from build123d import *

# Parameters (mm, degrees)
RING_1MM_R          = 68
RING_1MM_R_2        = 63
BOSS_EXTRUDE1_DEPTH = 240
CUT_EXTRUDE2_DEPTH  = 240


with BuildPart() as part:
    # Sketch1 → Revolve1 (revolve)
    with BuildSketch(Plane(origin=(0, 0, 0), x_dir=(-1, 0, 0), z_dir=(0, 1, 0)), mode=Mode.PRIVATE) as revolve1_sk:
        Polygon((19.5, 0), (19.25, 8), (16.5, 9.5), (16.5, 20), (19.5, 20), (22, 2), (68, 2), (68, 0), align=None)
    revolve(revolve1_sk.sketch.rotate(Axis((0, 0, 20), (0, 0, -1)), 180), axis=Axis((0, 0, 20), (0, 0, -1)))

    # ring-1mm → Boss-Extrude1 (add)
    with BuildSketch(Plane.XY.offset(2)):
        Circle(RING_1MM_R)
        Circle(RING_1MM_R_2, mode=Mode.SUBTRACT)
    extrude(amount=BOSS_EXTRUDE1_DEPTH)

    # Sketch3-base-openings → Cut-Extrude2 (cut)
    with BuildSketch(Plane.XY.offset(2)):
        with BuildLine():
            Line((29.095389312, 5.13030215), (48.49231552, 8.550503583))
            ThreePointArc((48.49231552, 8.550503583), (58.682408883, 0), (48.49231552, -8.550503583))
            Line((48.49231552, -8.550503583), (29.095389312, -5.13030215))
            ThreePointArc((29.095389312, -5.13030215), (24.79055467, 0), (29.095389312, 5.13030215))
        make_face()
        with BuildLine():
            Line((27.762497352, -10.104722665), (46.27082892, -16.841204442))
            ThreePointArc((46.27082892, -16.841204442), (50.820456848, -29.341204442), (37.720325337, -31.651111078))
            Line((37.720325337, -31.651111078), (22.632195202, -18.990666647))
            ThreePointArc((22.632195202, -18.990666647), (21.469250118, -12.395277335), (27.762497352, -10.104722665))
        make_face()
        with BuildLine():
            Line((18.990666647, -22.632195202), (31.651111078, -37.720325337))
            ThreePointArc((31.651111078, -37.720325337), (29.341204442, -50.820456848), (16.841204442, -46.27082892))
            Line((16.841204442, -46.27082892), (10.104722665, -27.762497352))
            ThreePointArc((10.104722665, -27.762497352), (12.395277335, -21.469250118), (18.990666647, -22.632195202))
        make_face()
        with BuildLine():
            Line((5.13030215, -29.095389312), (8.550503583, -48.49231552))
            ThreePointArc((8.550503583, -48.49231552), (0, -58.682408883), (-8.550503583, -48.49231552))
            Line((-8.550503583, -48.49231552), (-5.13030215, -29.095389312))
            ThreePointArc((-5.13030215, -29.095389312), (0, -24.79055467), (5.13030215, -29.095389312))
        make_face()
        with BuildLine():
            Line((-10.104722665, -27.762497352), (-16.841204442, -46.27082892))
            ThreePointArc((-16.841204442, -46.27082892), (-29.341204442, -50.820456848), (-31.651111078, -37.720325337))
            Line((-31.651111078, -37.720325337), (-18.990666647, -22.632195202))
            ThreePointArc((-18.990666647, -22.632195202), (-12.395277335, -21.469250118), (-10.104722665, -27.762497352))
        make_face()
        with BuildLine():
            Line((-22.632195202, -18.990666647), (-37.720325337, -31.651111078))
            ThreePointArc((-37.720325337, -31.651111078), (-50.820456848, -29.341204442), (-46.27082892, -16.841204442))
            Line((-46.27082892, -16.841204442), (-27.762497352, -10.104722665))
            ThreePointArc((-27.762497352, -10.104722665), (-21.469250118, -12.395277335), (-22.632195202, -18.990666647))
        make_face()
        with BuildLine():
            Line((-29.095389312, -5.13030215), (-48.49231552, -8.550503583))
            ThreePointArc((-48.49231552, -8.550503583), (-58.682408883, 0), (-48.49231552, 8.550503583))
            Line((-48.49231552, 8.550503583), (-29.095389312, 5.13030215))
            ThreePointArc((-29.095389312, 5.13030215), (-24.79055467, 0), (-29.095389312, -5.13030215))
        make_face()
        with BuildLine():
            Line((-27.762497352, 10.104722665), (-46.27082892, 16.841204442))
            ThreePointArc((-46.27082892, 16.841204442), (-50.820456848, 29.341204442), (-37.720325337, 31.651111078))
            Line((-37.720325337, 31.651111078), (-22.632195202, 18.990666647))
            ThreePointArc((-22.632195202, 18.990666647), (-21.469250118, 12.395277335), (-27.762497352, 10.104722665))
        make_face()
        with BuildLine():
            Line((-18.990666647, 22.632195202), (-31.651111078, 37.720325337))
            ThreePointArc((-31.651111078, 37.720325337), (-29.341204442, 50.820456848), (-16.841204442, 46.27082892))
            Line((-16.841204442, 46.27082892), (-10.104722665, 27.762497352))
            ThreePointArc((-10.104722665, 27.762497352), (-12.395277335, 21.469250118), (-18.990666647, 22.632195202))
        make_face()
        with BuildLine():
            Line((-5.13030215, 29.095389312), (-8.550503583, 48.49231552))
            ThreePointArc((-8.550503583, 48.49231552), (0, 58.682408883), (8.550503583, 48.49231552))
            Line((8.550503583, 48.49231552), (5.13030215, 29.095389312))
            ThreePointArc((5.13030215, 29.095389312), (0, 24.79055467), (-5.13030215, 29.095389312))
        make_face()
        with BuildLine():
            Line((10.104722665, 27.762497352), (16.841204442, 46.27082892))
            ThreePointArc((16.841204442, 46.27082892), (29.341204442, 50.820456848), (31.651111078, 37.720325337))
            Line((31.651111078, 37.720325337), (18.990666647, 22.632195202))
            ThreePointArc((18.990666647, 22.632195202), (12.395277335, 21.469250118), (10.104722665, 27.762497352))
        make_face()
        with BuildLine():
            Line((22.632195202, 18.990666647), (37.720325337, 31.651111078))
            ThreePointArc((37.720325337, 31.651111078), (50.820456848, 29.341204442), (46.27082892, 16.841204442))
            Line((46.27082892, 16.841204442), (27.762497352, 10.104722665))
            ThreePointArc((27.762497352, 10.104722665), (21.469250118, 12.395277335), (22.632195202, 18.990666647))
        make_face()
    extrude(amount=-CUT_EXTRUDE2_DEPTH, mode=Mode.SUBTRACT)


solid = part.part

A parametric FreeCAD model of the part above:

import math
import FreeCAD as App
import Part
import Sketcher
from FreeCAD import Vector
Q = App.Units.Quantity

doc = App.newDocument("Part")
params = doc.addObject("Spreadsheet::Sheet", "Params")
for row, (alias, value) in enumerate([
    ("sketch1_width", "46 mm"),
    ("sketch1_width2", "3 mm"),
    ("sketch1_height", "2 mm"),
    ("sketch1_width3", "48.5 mm"),
    ("sketch1_height2", "10.5 mm"),
    ("revolution_angle", "360 deg"),
    ("sketch2_diameter", "136 mm"),
    ("sketch2_diameter2", "126 mm"),
    ("pad1_length", "240 mm"),
    ("pocket1_length", "240 mm"),
], start=1):
    params.set(f"A{row}", alias)
    params.set(f"B{row}", "=" + value)
    params.setAlias(f"B{row}", alias)

body = doc.addObject("PartDesign::Body", "Body")

# Sketch on XZ plane
sketch1 = body.newObject("Sketcher::SketchObject", "Sketch")
sketch1.AttachmentSupport = (doc.getObject("XZ_Plane"), [""])
sketch1.MapMode = "FlatFace"
sketch1.addGeometry([
    Part.LineSegment(Vector(-19.25, 8, 0), Vector(-19.5, 0, 0)),  # 0
    Part.LineSegment(Vector(-19.5, 0, 0), Vector(-68, 0, 0)),  # 1
    Part.LineSegment(Vector(-68, 0, 0), Vector(-68, 2, 0)),  # 2
    Part.LineSegment(Vector(-68, 2, 0), Vector(-22, 2, 0)),  # 3
    Part.LineSegment(Vector(-22, 2, 0), Vector(-19.5, 20, 0)),  # 4
    Part.LineSegment(Vector(-19.5, 20, 0), Vector(-16.5, 20, 0)),  # 5
    Part.LineSegment(Vector(-16.5, 20, 0), Vector(-16.5, 9.5, 0)),  # 6
    Part.LineSegment(Vector(-16.5, 9.5, 0), Vector(-19.25, 8, 0)),  # 7
], False)
sketch1.addConstraint([
    Sketcher.Constraint("Coincident", 0, 2, 1, 1),
    Sketcher.Constraint("Coincident", 1, 2, 2, 1),
    Sketcher.Constraint("Coincident", 2, 2, 3, 1),
    Sketcher.Constraint("Coincident", 3, 2, 4, 1),
    Sketcher.Constraint("Coincident", 4, 2, 5, 1),
    Sketcher.Constraint("Coincident", 5, 2, 6, 1),
    Sketcher.Constraint("Coincident", 6, 2, 7, 1),
    Sketcher.Constraint("Coincident", 7, 2, 0, 1),
    Sketcher.Constraint("Horizontal", 1),
    Sketcher.Constraint("Vertical", 2),
    Sketcher.Constraint("Horizontal", 3),
    Sketcher.Constraint("Horizontal", 5),
    Sketcher.Constraint("Vertical", 6),
    Sketcher.Constraint("PointOnObject", 0, 2, -1),
    Sketcher.Constraint("Vertical", 0, 2, 4, 2),
    Sketcher.Constraint("DistanceX", 3, 1, 3, 2, Q("46 mm")),
    Sketcher.Constraint("DistanceX", 5, 1, 5, 2, Q("3 mm")),
    Sketcher.Constraint("DistanceY", 2, 1, 2, 2, Q("2 mm")),
    Sketcher.Constraint("DistanceX", 1, 2, 1, 1, Q("48.5 mm")),
    Sketcher.Constraint("DistanceY", 6, 2, 6, 1, Q("10.5 mm")),
    Sketcher.Constraint("DistanceX", 1, 2, -1, 1, Q("68 mm")),
    Sketcher.Constraint("DistanceY", -1, 1, 4, 2, Q("20 mm")),
    Sketcher.Constraint("DistanceY", -1, 1, 7, 2, Q("8 mm")),
    Sketcher.Constraint("DistanceX", 7, 2, -1, 1, Q("19.25 mm")),
])
sketch1.setExpression("Constraints[15]", "Params.sketch1_width")
sketch1.setExpression("Constraints[16]", "Params.sketch1_width2")
sketch1.setExpression("Constraints[17]", "Params.sketch1_height")
sketch1.setExpression("Constraints[18]", "Params.sketch1_width3")
sketch1.setExpression("Constraints[19]", "Params.sketch1_height2")
revolution = body.newObject("PartDesign::Revolution", "Revolution")
revolution.Profile = sketch1
revolution.ReferenceAxis = (sketch1, ["V_Axis"])
revolution.setExpression("Angle", "Params.revolution_angle")

# Sketch on XY plane
sketch2 = body.newObject("Sketcher::SketchObject", "Sketch001")
sketch2.AttachmentSupport = (doc.getObject("XY_Plane"), [""])
sketch2.MapMode = "FlatFace"
sketch2.AttachmentOffset = App.Placement(Vector(0, 0, 2), App.Rotation())
sketch2.addGeometry([
    Part.Circle(Vector(0, 0, 0), Vector(0, 0, 1), 68),
    Part.Circle(Vector(0, 0, 0), Vector(0, 0, 1), 63),
], False)
sketch2.addConstraint([
    Sketcher.Constraint("Coincident", 0, 3, -1, 1),
    Sketcher.Constraint("Coincident", 1, 3, -1, 1),
    Sketcher.Constraint("Diameter", 0, Q("136 mm")),
    Sketcher.Constraint("Diameter", 1, Q("126 mm")),
])
sketch2.setExpression("Constraints[2]", "Params.sketch2_diameter")
sketch2.setExpression("Constraints[3]", "Params.sketch2_diameter2")
pad1 = body.newObject("PartDesign::Pad", "Pad")
pad1.Profile = sketch2
pad1.setExpression("Length", "Params.pad1_length")

# Sketch on XY plane
sketch3 = body.newObject("Sketcher::SketchObject", "Sketch002")
sketch3.AttachmentSupport = (doc.getObject("XY_Plane"), [""])
sketch3.MapMode = "FlatFace"
sketch3.AttachmentOffset = App.Placement(Vector(0, 0, 2), App.Rotation())
sketch3.addGeometry([
    Part.LineSegment(Vector(48.492316, 8.550504, 0), Vector(29.095389, 5.130302, 0)),  # 0
    Part.ArcOfCircle(Part.Circle(Vector(30, 0, 0), Vector(0, 0, 1), 5.209445), math.radians(100), math.radians(260)),  # 1
    Part.LineSegment(Vector(29.095389, -5.130302, 0), Vector(48.492316, -8.550504, 0)),  # 2
    Part.ArcOfCircle(Part.Circle(Vector(50, 0, 0), Vector(0, 0, 1), 8.682409), math.radians(-100), math.radians(100)),  # 3
    Part.LineSegment(Vector(46.270829, -16.841204, 0), Vector(27.762497, -10.104723, 0)),  # 4
    Part.ArcOfCircle(Part.Circle(Vector(25.980762, -15, 0), Vector(0, 0, 1), 5.209445), math.radians(70), math.radians(230)),  # 5
    Part.LineSegment(Vector(22.632195, -18.990667, 0), Vector(37.720325, -31.651111, 0)),  # 6
    Part.ArcOfCircle(Part.Circle(Vector(43.30127, -25, 0), Vector(0, 0, 1), 8.682409), math.radians(-130), math.radians(70)),  # 7
    Part.LineSegment(Vector(31.651111, -37.720325, 0), Vector(18.990667, -22.632195, 0)),  # 8
    Part.ArcOfCircle(Part.Circle(Vector(15, -25.980762, 0), Vector(0, 0, 1), 5.209445), math.radians(40), math.radians(200)),  # 9
    Part.LineSegment(Vector(10.104723, -27.762497, 0), Vector(16.841204, -46.270829, 0)),  # 10
    Part.ArcOfCircle(Part.Circle(Vector(25, -43.30127, 0), Vector(0, 0, 1), 8.682409), math.radians(-160), math.radians(40)),  # 11
    Part.LineSegment(Vector(8.550504, -48.492316, 0), Vector(5.130302, -29.095389, 0)),  # 12
    Part.ArcOfCircle(Part.Circle(Vector(0, -30, 0), Vector(0, 0, 1), 5.209445), math.radians(10), math.radians(170)),  # 13
    Part.LineSegment(Vector(-5.130302, -29.095389, 0), Vector(-8.550504, -48.492316, 0)),  # 14
    Part.ArcOfCircle(Part.Circle(Vector(0, -50, 0), Vector(0, 0, 1), 8.682409), math.radians(170), math.radians(370)),  # 15
    Part.LineSegment(Vector(-16.841204, -46.270829, 0), Vector(-10.104723, -27.762497, 0)),  # 16
    Part.ArcOfCircle(Part.Circle(Vector(-15, -25.980762, 0), Vector(0, 0, 1), 5.209445), math.radians(-20), math.radians(140)),  # 17
    Part.LineSegment(Vector(-18.990667, -22.632195, 0), Vector(-31.651111, -37.720325, 0)),  # 18
    Part.ArcOfCircle(Part.Circle(Vector(-25, -43.30127, 0), Vector(0, 0, 1), 8.682409), math.radians(140), math.radians(340)),  # 19
    Part.LineSegment(Vector(-37.720325, -31.651111, 0), Vector(-22.632195, -18.990667, 0)),  # 20
    Part.ArcOfCircle(Part.Circle(Vector(-25.980762, -15, 0), Vector(0, 0, 1), 5.209445), math.radians(-50), math.radians(110)),  # 21
    Part.LineSegment(Vector(-27.762497, -10.104723, 0), Vector(-46.270829, -16.841204, 0)),  # 22
    Part.ArcOfCircle(Part.Circle(Vector(-43.30127, -25, 0), Vector(0, 0, 1), 8.682409), math.radians(110), math.radians(310)),  # 23
    Part.LineSegment(Vector(-48.492316, -8.550504, 0), Vector(-29.095389, -5.130302, 0)),  # 24
    Part.ArcOfCircle(Part.Circle(Vector(-30, 0, 0), Vector(0, 0, 1), 5.209445), math.radians(-80), math.radians(80)),  # 25
    Part.LineSegment(Vector(-29.095389, 5.130302, 0), Vector(-48.492316, 8.550504, 0)),  # 26
    Part.ArcOfCircle(Part.Circle(Vector(-50, 0, 0), Vector(0, 0, 1), 8.682409), math.radians(80), math.radians(280)),  # 27
    Part.LineSegment(Vector(-46.270829, 16.841204, 0), Vector(-27.762497, 10.104723, 0)),  # 28
    Part.ArcOfCircle(Part.Circle(Vector(-25.980762, 15, 0), Vector(0, 0, 1), 5.209445), math.radians(-110), math.radians(50)),  # 29
    Part.LineSegment(Vector(-22.632195, 18.990667, 0), Vector(-37.720325, 31.651111, 0)),  # 30
    Part.ArcOfCircle(Part.Circle(Vector(-43.30127, 25, 0), Vector(0, 0, 1), 8.682409), math.radians(50), math.radians(250)),  # 31
    Part.LineSegment(Vector(-31.651111, 37.720325, 0), Vector(-18.990667, 22.632195, 0)),  # 32
    Part.ArcOfCircle(Part.Circle(Vector(-15, 25.980762, 0), Vector(0, 0, 1), 5.209445), math.radians(-140), math.radians(20)),  # 33
    Part.LineSegment(Vector(-10.104723, 27.762497, 0), Vector(-16.841204, 46.270829, 0)),  # 34
    Part.ArcOfCircle(Part.Circle(Vector(-25, 43.30127, 0), Vector(0, 0, 1), 8.682409), math.radians(20), math.radians(220)),  # 35
    Part.LineSegment(Vector(-8.550504, 48.492316, 0), Vector(-5.130302, 29.095389, 0)),  # 36
    Part.ArcOfCircle(Part.Circle(Vector(0, 30, 0), Vector(0, 0, 1), 5.209445), math.radians(-170), math.radians(-10)),  # 37
    Part.LineSegment(Vector(5.130302, 29.095389, 0), Vector(8.550504, 48.492316, 0)),  # 38
    Part.ArcOfCircle(Part.Circle(Vector(0, 50, 0), Vector(0, 0, 1), 8.682409), math.radians(-10), math.radians(190)),  # 39
    Part.LineSegment(Vector(16.841204, 46.270829, 0), Vector(10.104723, 27.762497, 0)),  # 40
    Part.ArcOfCircle(Part.Circle(Vector(15, 25.980762, 0), Vector(0, 0, 1), 5.209445), math.radians(160), math.radians(320)),  # 41
    Part.LineSegment(Vector(18.990667, 22.632195, 0), Vector(31.651111, 37.720325, 0)),  # 42
    Part.ArcOfCircle(Part.Circle(Vector(25, 43.30127, 0), Vector(0, 0, 1), 8.682409), math.radians(-40), math.radians(160)),  # 43
    Part.LineSegment(Vector(37.720325, 31.651111, 0), Vector(22.632195, 18.990667, 0)),  # 44
    Part.ArcOfCircle(Part.Circle(Vector(25.980762, 15, 0), Vector(0, 0, 1), 5.209445), math.radians(130), math.radians(290)),  # 45
    Part.LineSegment(Vector(27.762497, 10.104723, 0), Vector(46.270829, 16.841204, 0)),  # 46
    Part.ArcOfCircle(Part.Circle(Vector(43.30127, 25, 0), Vector(0, 0, 1), 8.682409), math.radians(-70), math.radians(130)),  # 47
], False)
sketch3.addConstraint([
    Sketcher.Constraint("Tangent", 0, 2, 1, 1),
    Sketcher.Constraint("Tangent", 1, 2, 2, 1),
    Sketcher.Constraint("Tangent", 2, 2, 3, 1),
    Sketcher.Constraint("Tangent", 3, 2, 0, 1),
    Sketcher.Constraint("Tangent", 4, 2, 5, 1),
    Sketcher.Constraint("Tangent", 5, 2, 6, 1),
    Sketcher.Constraint("Tangent", 6, 2, 7, 1),
    Sketcher.Constraint("Tangent", 7, 2, 4, 1),
    Sketcher.Constraint("Tangent", 8, 2, 9, 1),
    Sketcher.Constraint("Tangent", 9, 2, 10, 1),
    Sketcher.Constraint("Tangent", 10, 2, 11, 1),
    Sketcher.Constraint("Tangent", 11, 2, 8, 1),
    Sketcher.Constraint("Tangent", 12, 2, 13, 1),
    Sketcher.Constraint("Tangent", 13, 2, 14, 1),
    Sketcher.Constraint("Tangent", 14, 2, 15, 1),
    Sketcher.Constraint("Tangent", 15, 2, 12, 1),
    Sketcher.Constraint("Tangent", 16, 2, 17, 1),
    Sketcher.Constraint("Tangent", 17, 2, 18, 1),
    Sketcher.Constraint("Tangent", 18, 2, 19, 1),
    Sketcher.Constraint("Tangent", 19, 2, 16, 1),
    Sketcher.Constraint("Tangent", 20, 2, 21, 1),
    Sketcher.Constraint("Tangent", 21, 2, 22, 1),
    Sketcher.Constraint("Tangent", 22, 2, 23, 1),
    Sketcher.Constraint("Tangent", 23, 2, 20, 1),
    Sketcher.Constraint("Tangent", 24, 2, 25, 1),
    Sketcher.Constraint("Tangent", 25, 2, 26, 1),
    Sketcher.Constraint("Tangent", 26, 2, 27, 1),
    Sketcher.Constraint("Tangent", 27, 2, 24, 1),
    Sketcher.Constraint("Tangent", 28, 2, 29, 1),
    Sketcher.Constraint("Tangent", 29, 2, 30, 1),
    Sketcher.Constraint("Tangent", 30, 2, 31, 1),
    Sketcher.Constraint("Tangent", 31, 2, 28, 1),
    Sketcher.Constraint("Tangent", 32, 2, 33, 1),
    Sketcher.Constraint("Tangent", 33, 2, 34, 1),
    Sketcher.Constraint("Tangent", 34, 2, 35, 1),
    Sketcher.Constraint("Tangent", 35, 2, 32, 1),
    Sketcher.Constraint("Tangent", 36, 2, 37, 1),
    Sketcher.Constraint("Tangent", 37, 2, 38, 1),
    Sketcher.Constraint("Tangent", 38, 2, 39, 1),
    Sketcher.Constraint("Tangent", 39, 2, 36, 1),
    Sketcher.Constraint("Tangent", 40, 2, 41, 1),
    Sketcher.Constraint("Tangent", 41, 2, 42, 1),
    Sketcher.Constraint("Tangent", 42, 2, 43, 1),
    Sketcher.Constraint("Tangent", 43, 2, 40, 1),
    Sketcher.Constraint("Tangent", 44, 2, 45, 1),
    Sketcher.Constraint("Tangent", 45, 2, 46, 1),
    Sketcher.Constraint("Tangent", 46, 2, 47, 1),
    Sketcher.Constraint("Tangent", 47, 2, 44, 1),
    Sketcher.Constraint("Equal", 1, 5),
    Sketcher.Constraint("Equal", 3, 7),
    Sketcher.Constraint("Equal", 5, 9),
    Sketcher.Constraint("Equal", 7, 11),
    Sketcher.Constraint("Equal", 9, 13),
    Sketcher.Constraint("Equal", 11, 15),
    Sketcher.Constraint("Equal", 13, 17),
    Sketcher.Constraint("Equal", 15, 19),
    Sketcher.Constraint("Equal", 17, 21),
    Sketcher.Constraint("Equal", 19, 23),
    Sketcher.Constraint("Equal", 21, 25),
    Sketcher.Constraint("Equal", 23, 27),
    Sketcher.Constraint("Equal", 25, 29),
    Sketcher.Constraint("Equal", 27, 31),
    Sketcher.Constraint("Equal", 29, 33),
    Sketcher.Constraint("Equal", 31, 35),
    Sketcher.Constraint("Equal", 33, 37),
    Sketcher.Constraint("Equal", 35, 39),
    Sketcher.Constraint("Equal", 37, 41),
    Sketcher.Constraint("Equal", 39, 43),
    Sketcher.Constraint("Equal", 41, 45),
    Sketcher.Constraint("Equal", 43, 47),
    Sketcher.Constraint("Symmetric", 1, 3, 25, 3, -1, 1),
    Sketcher.Constraint("Symmetric", 3, 3, 27, 3, -1, 1),
    Sketcher.Constraint("Symmetric", 5, 3, 29, 3, -1, 1),
    Sketcher.Constraint("Symmetric", 7, 3, 31, 3, -1, 1),
    Sketcher.Constraint("Symmetric", 9, 3, 33, 3, -1, 1),
    Sketcher.Constraint("Symmetric", 11, 3, 35, 3, -1, 1),
    Sketcher.Constraint("Symmetric", 13, 3, 37, 3, -1, 1),
    Sketcher.Constraint("Symmetric", 15, 3, 39, 3, -1, 1),
    Sketcher.Constraint("Symmetric", 17, 3, 41, 3, -1, 1),
    Sketcher.Constraint("Symmetric", 19, 3, 43, 3, -1, 1),
    Sketcher.Constraint("Symmetric", 21, 3, 45, 3, -1, 1),
    Sketcher.Constraint("Symmetric", 23, 3, 47, 3, -1, 1),
    Sketcher.Constraint("Symmetric", 9, 3, 17, 3, -2),
    Sketcher.Constraint("Symmetric", 11, 3, 19, 3, -2),
    Sketcher.Constraint("Symmetric", 5, 3, 21, 3, -2),
    Sketcher.Constraint("Symmetric", 7, 3, 23, 3, -2),
    Sketcher.Constraint("Symmetric", 12, 2, 13, 2, -2),
    Sketcher.Constraint("Symmetric", 1, 2, 24, 2, -2),
    Sketcher.Constraint("Perpendicular", 0, 12),
    Sketcher.Constraint("Perpendicular", 4, 16),
    Sketcher.Constraint("Perpendicular", 6, 18),
    Sketcher.Constraint("Equal", 2, 4),
    Sketcher.Constraint("Angle", 0, Q("-170 deg")),
    Sketcher.Constraint("Angle", 4, Q("160 deg")),
    Sketcher.Constraint("DistanceX", -1, 1, 1, 3, Q("30 mm")),
    Sketcher.Constraint("DistanceX", -1, 1, 3, 3, Q("50 mm")),
    Sketcher.Constraint("DistanceY", 5, 3, -1, 1, Q("15 mm")),
    Sketcher.Constraint("DistanceX", -1, 1, 9, 3, Q("15 mm")),
    Sketcher.Constraint("DistanceY", 13, 3, -1, 1, Q("30 mm")),
    Sketcher.Constraint("Radius", 3, Q("8.682409 mm")),
    Sketcher.Constraint("DistanceX", -1, 1, 7, 3, Q("43.30127 mm")),
    Sketcher.Constraint("DistanceY", 11, 3, -1, 1, Q("43.30127 mm")),
])
pocket1 = body.newObject("PartDesign::Pocket", "Pocket")
pocket1.Profile = sketch3
pocket1.setExpression("Length", "Params.pocket1_length")

doc.recompute()
